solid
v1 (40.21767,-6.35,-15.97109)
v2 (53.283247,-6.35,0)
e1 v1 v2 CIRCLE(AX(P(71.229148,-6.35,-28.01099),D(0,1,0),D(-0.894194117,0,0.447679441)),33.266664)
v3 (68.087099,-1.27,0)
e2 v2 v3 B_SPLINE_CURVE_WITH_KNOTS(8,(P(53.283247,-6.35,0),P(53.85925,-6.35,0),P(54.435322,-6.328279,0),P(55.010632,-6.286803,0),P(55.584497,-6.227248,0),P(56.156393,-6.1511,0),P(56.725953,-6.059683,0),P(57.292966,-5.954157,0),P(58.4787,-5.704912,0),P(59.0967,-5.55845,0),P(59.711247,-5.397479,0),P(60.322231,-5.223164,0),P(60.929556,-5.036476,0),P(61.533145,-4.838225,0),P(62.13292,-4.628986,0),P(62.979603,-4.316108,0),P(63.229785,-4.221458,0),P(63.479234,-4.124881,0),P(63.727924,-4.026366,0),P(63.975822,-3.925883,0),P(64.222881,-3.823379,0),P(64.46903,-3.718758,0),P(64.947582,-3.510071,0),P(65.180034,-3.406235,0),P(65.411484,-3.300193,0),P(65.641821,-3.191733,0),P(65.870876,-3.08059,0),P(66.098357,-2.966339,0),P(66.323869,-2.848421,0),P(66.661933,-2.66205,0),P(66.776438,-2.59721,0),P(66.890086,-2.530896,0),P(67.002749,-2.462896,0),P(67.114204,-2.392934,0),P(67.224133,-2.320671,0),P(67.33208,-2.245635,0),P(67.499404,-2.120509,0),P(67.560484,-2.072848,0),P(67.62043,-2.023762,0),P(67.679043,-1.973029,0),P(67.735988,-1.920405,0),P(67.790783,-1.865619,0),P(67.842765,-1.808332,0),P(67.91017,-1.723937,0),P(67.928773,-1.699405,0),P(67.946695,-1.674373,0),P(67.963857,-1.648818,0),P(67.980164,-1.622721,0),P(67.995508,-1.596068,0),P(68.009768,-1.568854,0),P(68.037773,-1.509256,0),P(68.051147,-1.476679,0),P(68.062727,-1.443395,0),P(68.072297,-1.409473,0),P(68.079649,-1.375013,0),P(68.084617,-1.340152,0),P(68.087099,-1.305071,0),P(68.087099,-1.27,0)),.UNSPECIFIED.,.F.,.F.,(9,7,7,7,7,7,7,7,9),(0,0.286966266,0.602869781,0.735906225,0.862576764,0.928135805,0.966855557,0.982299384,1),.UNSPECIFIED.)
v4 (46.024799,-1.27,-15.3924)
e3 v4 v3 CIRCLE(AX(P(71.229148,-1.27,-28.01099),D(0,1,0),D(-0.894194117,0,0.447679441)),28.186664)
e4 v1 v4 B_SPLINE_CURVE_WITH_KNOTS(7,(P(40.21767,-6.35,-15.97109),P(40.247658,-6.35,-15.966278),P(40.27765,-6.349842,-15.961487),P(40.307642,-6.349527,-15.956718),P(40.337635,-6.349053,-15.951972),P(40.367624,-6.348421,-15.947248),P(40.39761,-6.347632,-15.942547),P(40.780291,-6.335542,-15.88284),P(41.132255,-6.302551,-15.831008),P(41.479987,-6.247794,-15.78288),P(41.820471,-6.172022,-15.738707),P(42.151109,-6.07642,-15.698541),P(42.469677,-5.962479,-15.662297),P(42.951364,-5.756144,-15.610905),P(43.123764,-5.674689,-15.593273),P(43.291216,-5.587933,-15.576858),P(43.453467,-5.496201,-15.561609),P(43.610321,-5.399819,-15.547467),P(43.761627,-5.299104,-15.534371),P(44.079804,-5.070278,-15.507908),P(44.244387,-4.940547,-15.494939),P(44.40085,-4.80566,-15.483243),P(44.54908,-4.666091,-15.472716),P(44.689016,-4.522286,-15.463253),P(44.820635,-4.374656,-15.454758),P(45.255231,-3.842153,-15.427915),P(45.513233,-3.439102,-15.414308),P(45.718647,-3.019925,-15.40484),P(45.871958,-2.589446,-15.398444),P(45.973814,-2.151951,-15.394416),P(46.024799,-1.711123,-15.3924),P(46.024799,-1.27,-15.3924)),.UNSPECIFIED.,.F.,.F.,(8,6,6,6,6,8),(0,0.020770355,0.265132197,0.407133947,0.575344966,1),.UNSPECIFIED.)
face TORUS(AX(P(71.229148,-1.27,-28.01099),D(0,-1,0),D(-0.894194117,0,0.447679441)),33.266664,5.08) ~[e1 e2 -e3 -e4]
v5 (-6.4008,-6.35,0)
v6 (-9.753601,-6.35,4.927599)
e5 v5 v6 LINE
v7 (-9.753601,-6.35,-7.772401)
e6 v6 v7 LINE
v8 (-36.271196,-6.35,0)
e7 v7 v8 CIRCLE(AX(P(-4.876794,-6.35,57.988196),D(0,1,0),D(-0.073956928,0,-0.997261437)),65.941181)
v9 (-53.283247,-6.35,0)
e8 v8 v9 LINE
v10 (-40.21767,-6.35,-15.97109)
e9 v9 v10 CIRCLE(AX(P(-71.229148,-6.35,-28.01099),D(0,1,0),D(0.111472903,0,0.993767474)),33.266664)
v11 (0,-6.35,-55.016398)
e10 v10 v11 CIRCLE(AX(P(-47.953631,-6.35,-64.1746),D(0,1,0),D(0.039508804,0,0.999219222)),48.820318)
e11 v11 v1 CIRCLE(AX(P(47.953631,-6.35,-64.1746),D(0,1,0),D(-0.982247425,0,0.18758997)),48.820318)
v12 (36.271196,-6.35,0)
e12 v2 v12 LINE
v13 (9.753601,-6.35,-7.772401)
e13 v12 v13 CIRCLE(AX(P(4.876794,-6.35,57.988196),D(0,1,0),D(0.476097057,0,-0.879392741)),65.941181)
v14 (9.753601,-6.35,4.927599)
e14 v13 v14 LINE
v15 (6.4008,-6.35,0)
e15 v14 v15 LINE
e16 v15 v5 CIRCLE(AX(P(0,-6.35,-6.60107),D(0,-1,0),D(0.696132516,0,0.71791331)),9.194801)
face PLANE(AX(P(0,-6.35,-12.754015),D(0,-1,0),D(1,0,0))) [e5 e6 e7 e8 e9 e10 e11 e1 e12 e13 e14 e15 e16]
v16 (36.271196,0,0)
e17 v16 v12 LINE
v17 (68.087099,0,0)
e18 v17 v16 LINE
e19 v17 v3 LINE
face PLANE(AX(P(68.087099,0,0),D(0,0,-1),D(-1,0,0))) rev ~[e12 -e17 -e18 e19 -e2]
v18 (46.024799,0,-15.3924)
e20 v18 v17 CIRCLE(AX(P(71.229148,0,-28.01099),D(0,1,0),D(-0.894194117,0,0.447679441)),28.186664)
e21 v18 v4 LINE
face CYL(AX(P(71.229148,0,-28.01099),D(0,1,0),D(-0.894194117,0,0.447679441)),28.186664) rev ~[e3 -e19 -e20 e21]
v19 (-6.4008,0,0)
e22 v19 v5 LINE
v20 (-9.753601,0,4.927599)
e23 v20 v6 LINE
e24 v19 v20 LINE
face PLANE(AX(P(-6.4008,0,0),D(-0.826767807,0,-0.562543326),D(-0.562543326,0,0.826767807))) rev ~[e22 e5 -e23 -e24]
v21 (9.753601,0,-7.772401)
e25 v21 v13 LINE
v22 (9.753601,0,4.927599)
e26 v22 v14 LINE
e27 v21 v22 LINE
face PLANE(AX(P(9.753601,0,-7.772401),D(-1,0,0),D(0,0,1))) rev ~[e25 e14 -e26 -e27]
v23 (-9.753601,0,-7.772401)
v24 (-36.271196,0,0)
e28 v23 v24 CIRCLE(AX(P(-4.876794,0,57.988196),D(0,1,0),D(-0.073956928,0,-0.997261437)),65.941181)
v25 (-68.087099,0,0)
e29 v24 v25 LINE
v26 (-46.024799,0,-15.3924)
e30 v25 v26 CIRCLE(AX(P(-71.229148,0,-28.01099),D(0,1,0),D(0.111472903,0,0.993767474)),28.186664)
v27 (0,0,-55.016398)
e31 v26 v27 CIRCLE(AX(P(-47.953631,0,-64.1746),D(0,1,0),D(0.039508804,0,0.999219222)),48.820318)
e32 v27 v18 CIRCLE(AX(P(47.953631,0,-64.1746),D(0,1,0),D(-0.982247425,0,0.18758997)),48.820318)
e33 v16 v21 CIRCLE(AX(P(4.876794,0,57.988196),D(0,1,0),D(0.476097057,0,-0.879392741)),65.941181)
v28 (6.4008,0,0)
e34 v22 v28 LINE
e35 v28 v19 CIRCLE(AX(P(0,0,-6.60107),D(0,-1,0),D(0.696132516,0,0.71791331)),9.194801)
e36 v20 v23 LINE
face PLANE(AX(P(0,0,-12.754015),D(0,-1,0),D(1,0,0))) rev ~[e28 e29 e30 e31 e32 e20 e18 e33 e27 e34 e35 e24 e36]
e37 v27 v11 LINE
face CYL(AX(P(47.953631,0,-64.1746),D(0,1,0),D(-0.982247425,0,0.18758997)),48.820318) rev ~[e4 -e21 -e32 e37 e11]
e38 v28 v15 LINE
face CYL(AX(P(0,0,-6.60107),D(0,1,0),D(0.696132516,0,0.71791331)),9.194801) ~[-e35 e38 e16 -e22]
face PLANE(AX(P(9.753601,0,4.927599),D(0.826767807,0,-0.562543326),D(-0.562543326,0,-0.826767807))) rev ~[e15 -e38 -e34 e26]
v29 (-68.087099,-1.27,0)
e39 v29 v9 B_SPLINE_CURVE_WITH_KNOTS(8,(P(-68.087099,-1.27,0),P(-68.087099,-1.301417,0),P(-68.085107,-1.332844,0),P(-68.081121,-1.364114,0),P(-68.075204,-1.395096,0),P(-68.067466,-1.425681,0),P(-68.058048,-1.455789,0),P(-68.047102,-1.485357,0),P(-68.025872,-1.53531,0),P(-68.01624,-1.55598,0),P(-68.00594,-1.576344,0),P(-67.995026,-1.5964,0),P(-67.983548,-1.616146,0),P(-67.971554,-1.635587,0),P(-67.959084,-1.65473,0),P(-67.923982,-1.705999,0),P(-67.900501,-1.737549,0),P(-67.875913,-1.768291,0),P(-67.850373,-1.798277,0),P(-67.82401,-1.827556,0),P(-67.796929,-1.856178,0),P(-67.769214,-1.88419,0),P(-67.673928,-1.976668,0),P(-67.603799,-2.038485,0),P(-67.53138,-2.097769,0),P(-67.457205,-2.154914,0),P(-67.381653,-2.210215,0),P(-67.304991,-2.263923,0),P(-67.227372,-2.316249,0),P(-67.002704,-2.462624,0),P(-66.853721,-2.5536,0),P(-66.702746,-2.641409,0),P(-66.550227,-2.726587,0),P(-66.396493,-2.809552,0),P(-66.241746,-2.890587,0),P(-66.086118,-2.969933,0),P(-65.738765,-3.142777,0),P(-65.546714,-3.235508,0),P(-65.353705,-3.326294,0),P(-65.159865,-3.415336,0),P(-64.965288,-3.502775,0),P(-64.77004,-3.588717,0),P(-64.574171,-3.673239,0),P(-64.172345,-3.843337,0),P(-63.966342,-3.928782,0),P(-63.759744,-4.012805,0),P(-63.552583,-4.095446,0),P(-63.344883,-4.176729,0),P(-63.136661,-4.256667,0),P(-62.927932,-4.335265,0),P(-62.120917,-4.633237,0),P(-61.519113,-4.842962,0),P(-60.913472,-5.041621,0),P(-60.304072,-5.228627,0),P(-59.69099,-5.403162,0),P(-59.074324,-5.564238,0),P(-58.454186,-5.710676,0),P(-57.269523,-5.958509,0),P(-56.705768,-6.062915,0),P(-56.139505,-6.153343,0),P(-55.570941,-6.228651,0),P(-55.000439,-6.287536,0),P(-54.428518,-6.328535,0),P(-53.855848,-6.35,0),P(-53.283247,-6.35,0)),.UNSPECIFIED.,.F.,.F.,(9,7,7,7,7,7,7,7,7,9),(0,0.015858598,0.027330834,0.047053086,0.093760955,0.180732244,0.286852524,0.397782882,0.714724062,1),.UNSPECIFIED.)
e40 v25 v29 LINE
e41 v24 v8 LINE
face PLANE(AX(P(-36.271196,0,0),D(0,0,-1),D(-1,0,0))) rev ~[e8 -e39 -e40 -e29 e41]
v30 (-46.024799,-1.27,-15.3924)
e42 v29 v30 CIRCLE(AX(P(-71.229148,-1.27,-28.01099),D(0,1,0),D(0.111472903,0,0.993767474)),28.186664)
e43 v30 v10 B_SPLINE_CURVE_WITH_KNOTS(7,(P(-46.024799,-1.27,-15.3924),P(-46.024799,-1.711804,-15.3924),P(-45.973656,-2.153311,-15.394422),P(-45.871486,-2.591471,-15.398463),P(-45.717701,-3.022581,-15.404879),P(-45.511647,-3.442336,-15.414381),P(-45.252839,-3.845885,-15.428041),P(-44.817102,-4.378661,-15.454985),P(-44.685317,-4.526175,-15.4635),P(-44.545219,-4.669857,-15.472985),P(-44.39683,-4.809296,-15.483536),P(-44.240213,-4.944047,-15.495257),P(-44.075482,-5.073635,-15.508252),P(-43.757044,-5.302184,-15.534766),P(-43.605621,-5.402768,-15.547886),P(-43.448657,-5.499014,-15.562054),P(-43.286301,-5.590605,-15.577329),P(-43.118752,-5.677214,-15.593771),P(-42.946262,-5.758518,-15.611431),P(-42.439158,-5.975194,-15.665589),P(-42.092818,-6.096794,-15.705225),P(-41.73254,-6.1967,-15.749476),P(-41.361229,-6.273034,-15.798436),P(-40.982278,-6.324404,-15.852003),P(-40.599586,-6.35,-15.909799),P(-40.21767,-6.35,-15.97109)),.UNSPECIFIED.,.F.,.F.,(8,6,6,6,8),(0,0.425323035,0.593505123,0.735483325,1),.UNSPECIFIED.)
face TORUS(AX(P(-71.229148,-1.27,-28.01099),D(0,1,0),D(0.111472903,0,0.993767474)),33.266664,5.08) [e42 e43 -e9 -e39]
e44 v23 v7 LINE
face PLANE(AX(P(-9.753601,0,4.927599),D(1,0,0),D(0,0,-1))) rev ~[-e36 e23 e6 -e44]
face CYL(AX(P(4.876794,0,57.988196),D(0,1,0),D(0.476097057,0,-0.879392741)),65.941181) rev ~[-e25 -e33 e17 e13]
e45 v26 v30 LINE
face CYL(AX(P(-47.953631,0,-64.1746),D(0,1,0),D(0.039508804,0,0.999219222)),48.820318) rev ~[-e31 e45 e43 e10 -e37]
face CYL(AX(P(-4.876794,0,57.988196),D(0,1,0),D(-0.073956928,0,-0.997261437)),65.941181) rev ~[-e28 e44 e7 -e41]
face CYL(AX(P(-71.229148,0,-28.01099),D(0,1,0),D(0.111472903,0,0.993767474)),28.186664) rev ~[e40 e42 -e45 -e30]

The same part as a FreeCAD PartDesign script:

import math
import FreeCAD as App
import Part
import Sketcher

V = App.Vector
Q = App.Units.Quantity


def edges_at(feature, points):
    """Names of the edges that pass closest to the given points."""
    edges = feature.Shape.Edges
    near = lambda p: min(range(len(edges)), key=lambda i: edges[i].distToShape(Part.Vertex(*p))[0])
    return sorted({f"Edge{near(p) + 1}" for p in points})

doc = App.newDocument("Part")
params = doc.addObject("Spreadsheet::Sheet", "Params")
for row, (alias, value) in enumerate([
    ("sketch1_height", "0.5 in"),
    ("sketch1_radius", "0.362 in"),
    ("pad1_length", "0.25 in"),
    ("fillet_radius", "0.2 in"),
    ("fillet2_radius", "0.2 in"),
], start=1):
    params.set(f"A{row}", alias)
    params.set(f"B{row}", "=" + value)
    params.setAlias(f"B{row}", alias)

body = doc.addObject("PartDesign::Body", "Body")

# Sketch on XZ plane
sketch1 = doc.addObject("Sketcher::SketchObject", "Sketch")
body.addObject(sketch1)
sketch1.AttachmentSupport = (doc.XZ_Plane, [""])
sketch1.MapMode = "FlatFace"
sketch1.addGeometry(Part.ArcOfCircle(Part.Circle(V(47.953631, -64.1746, 0), V(0, 0, 1), 48.820318), math.radians(92.264277), math.radians(169.187829)), False)
sketch1.addGeometry(Part.ArcOfCircle(Part.Circle(V(71.229148, -28.01099, 0), V(0, 0, 1), 28.186664), math.radians(96.400229), math.radians(153.405104)), False)
sketch1.addGeometry(Part.LineSegment(V(68.087099, 0, 0), V(36.271196, 0, 0)), False)
sketch1.addGeometry(Part.ArcOfCircle(Part.Circle(V(4.876794, 57.988196, 0), V(0, 0, 1), 65.941181), math.radians(-85.758708), math.radians(-61.569197)), False)
sketch1.addGeometry(Part.LineSegment(V(9.753601, -7.772401, 0), V(9.753601, 4.927599, 0)), False)
sketch1.addGeometry(Part.LineSegment(V(9.753601, 4.927599, 0), V(6.4008, 0, 0)), False)
sketch1.addGeometry(Part.ArcOfCircle(Part.Circle(V(0, -6.60107, 0), V(0, 0, 1), 9.194801), math.radians(45.882467), math.radians(134.117533)), False)
sketch1.addGeometry(Part.LineSegment(V(-6.4008, 0, 0), V(-9.753601, 4.927599, 0)), False)
sketch1.addGeometry(Part.LineSegment(V(-9.753601, 4.927599, 0), V(-9.753601, -7.772401, 0)), False)
sketch1.addGeometry(Part.ArcOfCircle(Part.Circle(V(-4.876794, 57.988196, 0), V(0, 0, 1), 65.941181), math.radians(-118.430803), math.radians(-94.241292)), False)
sketch1.addGeometry(Part.LineSegment(V(-36.271196, 0, 0), V(-68.087099, 0, 0)), False)
sketch1.addGeometry(Part.ArcOfCircle(Part.Circle(V(-71.229148, -28.01099, 0), V(0, 0, 1), 28.186664), math.radians(26.594896), math.radians(83.599771)), False)
sketch1.addGeometry(Part.ArcOfCircle(Part.Circle(V(-47.953631, -64.1746, 0), V(0, 0, 1), 48.820318), math.radians(10.812171), math.radians(87.735723)), False)
sketch1.addConstraint(Sketcher.Constraint("Coincident", 0, 1, 1, 2))
sketch1.addConstraint(Sketcher.Constraint("Coincident", 1, 1, 2, 1))
sketch1.addConstraint(Sketcher.Constraint("Coincident", 2, 2, 3, 2))
sketch1.addConstraint(Sketcher.Constraint("Coincident", 3, 1, 4, 1))
sketch1.addConstraint(Sketcher.Constraint("Coincident", 4, 2, 5, 1))
sketch1.addConstraint(Sketcher.Constraint("Coincident", 5, 2, 6, 1))
sketch1.addConstraint(Sketcher.Constraint("Coincident", 6, 2, 7, 1))
sketch1.addConstraint(Sketcher.Constraint("Coincident", 7, 2, 8, 1))
sketch1.addConstraint(Sketcher.Constraint("Coincident", 8, 2, 9, 2))
sketch1.addConstraint(Sketcher.Constraint("Coincident", 9, 1, 10, 1))
sketch1.addConstraint(Sketcher.Constraint("Coincident", 10, 2, 11, 2))
sketch1.addConstraint(Sketcher.Constraint("Coincident", 11, 1, 12, 2))
sketch1.addConstraint(Sketcher.Constraint("Coincident", 12, 1, 0, 2))
sketch1.addConstraint(Sketcher.Constraint("Horizontal", 2))
sketch1.addConstraint(Sketcher.Constraint("Vertical", 4))
sketch1.addConstraint(Sketcher.Constraint("Vertical", 8))
sketch1.addConstraint(Sketcher.Constraint("Horizontal", 10))
sketch1.addConstraint(Sketcher.Constraint("Equal", 3, 9))
sketch1.addConstraint(Sketcher.Constraint("Equal", 1, 11))
sketch1.addConstraint(Sketcher.Constraint("Equal", 0, 12))
sketch1.addConstraint(Sketcher.Constraint("Symmetric", 5, 2, 6, 2, -1, 1))
sketch1.addConstraint(Sketcher.Constraint("Symmetric", 2, 2, 9, 1, -1, 1))
sketch1.addConstraint(Sketcher.Constraint("Symmetric", 3, 3, 9, 3, -2))
sketch1.addConstraint(Sketcher.Constraint("Symmetric", 1, 3, 11, 3, -2))
sketch1.addConstraint(Sketcher.Constraint("Symmetric", 0, 3, 12, 3, -2))
sketch1.addConstraint(Sketcher.Constraint("Symmetric", 4, 2, 7, 2, -2))
sketch1.addConstraint(Sketcher.Constraint("PointOnObject", 6, 3, -2))
sketch1.addConstraint(Sketcher.Constraint("DistanceY", 4, 1, 4, 2, Q("0.5 in")))
sketch1.addConstraint(Sketcher.Constraint("Radius", 6, Q("0.362 in")))
sketch1.addConstraint(Sketcher.Constraint("DistanceY", 0, 1, 3, 1, Q("0.3 in")))
sketch1.addConstraint(Sketcher.Constraint("DistanceX", 5, 2, 0, 1, Q("1.56 in")))
sketch1.addConstraint(Sketcher.Constraint("DistanceX", 6, 2, 2, 2, Q("1.6799998 in")))
sketch1.addConstraint(Sketcher.Constraint("DistanceY", 12, 1, 8, 2, Q("1.8599999 in")))
sketch1.addConstraint(Sketcher.Constraint("DistanceY", -1, 1, 3, 3, Q("2.2829998 in")))
sketch1.addConstraint(Sketcher.Constraint("DistanceX", -1, 1, 0, 1, Q("1.812 in")))
sketch1.addConstraint(Sketcher.Constraint("DistanceY", 0, 1, -1, 1, Q("0.606 in")))
sketch1.addConstraint(Sketcher.Constraint("DistanceX", -1, 1, 3, 1, Q("0.384 in")))
sketch1.addConstraint(Sketcher.Constraint("Radius", 0, Q("48.820318 mm")))
sketch1.addConstraint(Sketcher.Constraint("Radius", 1, Q("28.186664 mm")))
sketch1.addConstraint(Sketcher.Constraint("DistanceX", -1, 1, 1, 1, Q("68.087099 mm")))
sketch1.setExpression("Constraints[27]", "Params.sketch1_height")
sketch1.setExpression("Constraints[28]", "Params.sketch1_radius")
pad1 = doc.addObject("PartDesign::Pad", "Pad")
body.addObject(pad1)
pad1.Profile = sketch1
pad1.setExpression("Length", "Params.pad1_length")
doc.recompute()

fillet = doc.addObject("PartDesign::Fillet", "Fillet")
body.addObject(fillet)
fillet.Base = (pad1, edges_at(pad1, [(-55.101, -6.35, -4.894)]))
fillet.setExpression("Radius", "Params.fillet_radius")
doc.recompute()

fillet2 = doc.addObject("PartDesign::Fillet", "Fillet001")
body.addObject(fillet2)
fillet2.Base = (fillet, edges_at(fillet, [(55.101, -6.35, -4.894)]))
fillet2.setExpression("Radius", "Params.fillet2_radius")

doc.recompute()
